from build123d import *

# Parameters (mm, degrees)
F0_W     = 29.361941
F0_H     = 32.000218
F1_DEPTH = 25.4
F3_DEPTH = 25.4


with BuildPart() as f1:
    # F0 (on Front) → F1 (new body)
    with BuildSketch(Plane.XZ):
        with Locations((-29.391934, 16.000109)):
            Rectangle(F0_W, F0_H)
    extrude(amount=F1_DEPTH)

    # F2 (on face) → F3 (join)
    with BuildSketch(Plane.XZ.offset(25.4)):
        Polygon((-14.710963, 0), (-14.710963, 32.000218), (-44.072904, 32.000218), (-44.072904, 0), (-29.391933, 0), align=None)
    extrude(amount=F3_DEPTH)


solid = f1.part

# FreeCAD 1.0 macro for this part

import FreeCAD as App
import Part
import Sketcher
Q = App.Units.Quantity


def add_polygon(sketch, points):
    """Adds a closed chain of lines whose ends are joined by coincident constraints."""
    first, n = sketch.GeometryCount, len(points)
    for a, b in zip(points, points[1:] + points[:1]):
        sketch.addGeometry(Part.LineSegment(App.Vector(*a, 0), App.Vector(*b, 0)), False)
    for i in range(n):
        sketch.addConstraint(Sketcher.Constraint("Coincident", first + i, 2, first + (i + 1) % n, 1))

doc = App.newDocument("Part")
body = doc.addObject("PartDesign::Body", "Body")

# Sketch on XZ plane
sketch1 = body.newObject("Sketcher::SketchObject", "Sketch")
sketch1.AttachmentSupport = (doc.getObject("XZ_Plane"), [""])
sketch1.MapMode = "FlatFace"
add_polygon(sketch1, [(-44, 32), (-44, 0), (-15, 0), (-15, 32)])  # lines 0-3
sketch1.addConstraint([
    Sketcher.Constraint("Vertical", 0),
    Sketcher.Constraint("Horizontal", 1),
    Sketcher.Constraint("Vertical", 2),
    Sketcher.Constraint("Horizontal", 3),
    Sketcher.Constraint("PointOnObject", 0, 2, -1),
    Sketcher.Constraint("DistanceX", 1, 1, 1, 2, Q("29.361941 mm")),
    Sketcher.Constraint("DistanceY", 0, 2, 0, 1, Q("32.000218 mm")),
    Sketcher.Constraint("DistanceX", 0, 2, -1, 1, Q("44.072904 mm")),
])
pad1 = body.newObject("PartDesign::Pad", "Pad")
pad1.Profile = sketch1
pad1.Length = Q("1 in")

# Sketch on XZ plane
sketch2 = body.newObject("Sketcher::SketchObject", "Sketch001")
sketch2.AttachmentSupport = (doc.getObject("XZ_Plane"), [""])
sketch2.MapMode = "FlatFace"
sketch2.AttachmentOffset = App.Placement(App.Vector(0, 0, 1 * 25.4), App.Rotation())
add_polygon(sketch2, [(-15, 0), (-15, 32), (-44, 32), (-44, 0)])  # lines 0-3
sketch2.addConstraint([
    Sketcher.Constraint("Vertical", 0),
    Sketcher.Constraint("Horizontal", 1),
    Sketcher.Constraint("Vertical", 2),
    Sketcher.Constraint("Horizontal", 3),
    Sketcher.Constraint("PointOnObject", 2, 2, -1),
    Sketcher.Constraint("DistanceX", 1, 2, 1, 1, Q("29.361941 mm")),
    Sketcher.Constraint("DistanceY", 0, 1, 0, 2, Q("32.000218 mm")),
    Sketcher.Constraint("DistanceX", 0, 2, -1, 1, Q("14.710963 mm")),
])
pad2 = body.newObject("PartDesign::Pad", "Pad001")
pad2.Profile = sketch2
pad2.Length = Q("1 in")

doc.recompute()
